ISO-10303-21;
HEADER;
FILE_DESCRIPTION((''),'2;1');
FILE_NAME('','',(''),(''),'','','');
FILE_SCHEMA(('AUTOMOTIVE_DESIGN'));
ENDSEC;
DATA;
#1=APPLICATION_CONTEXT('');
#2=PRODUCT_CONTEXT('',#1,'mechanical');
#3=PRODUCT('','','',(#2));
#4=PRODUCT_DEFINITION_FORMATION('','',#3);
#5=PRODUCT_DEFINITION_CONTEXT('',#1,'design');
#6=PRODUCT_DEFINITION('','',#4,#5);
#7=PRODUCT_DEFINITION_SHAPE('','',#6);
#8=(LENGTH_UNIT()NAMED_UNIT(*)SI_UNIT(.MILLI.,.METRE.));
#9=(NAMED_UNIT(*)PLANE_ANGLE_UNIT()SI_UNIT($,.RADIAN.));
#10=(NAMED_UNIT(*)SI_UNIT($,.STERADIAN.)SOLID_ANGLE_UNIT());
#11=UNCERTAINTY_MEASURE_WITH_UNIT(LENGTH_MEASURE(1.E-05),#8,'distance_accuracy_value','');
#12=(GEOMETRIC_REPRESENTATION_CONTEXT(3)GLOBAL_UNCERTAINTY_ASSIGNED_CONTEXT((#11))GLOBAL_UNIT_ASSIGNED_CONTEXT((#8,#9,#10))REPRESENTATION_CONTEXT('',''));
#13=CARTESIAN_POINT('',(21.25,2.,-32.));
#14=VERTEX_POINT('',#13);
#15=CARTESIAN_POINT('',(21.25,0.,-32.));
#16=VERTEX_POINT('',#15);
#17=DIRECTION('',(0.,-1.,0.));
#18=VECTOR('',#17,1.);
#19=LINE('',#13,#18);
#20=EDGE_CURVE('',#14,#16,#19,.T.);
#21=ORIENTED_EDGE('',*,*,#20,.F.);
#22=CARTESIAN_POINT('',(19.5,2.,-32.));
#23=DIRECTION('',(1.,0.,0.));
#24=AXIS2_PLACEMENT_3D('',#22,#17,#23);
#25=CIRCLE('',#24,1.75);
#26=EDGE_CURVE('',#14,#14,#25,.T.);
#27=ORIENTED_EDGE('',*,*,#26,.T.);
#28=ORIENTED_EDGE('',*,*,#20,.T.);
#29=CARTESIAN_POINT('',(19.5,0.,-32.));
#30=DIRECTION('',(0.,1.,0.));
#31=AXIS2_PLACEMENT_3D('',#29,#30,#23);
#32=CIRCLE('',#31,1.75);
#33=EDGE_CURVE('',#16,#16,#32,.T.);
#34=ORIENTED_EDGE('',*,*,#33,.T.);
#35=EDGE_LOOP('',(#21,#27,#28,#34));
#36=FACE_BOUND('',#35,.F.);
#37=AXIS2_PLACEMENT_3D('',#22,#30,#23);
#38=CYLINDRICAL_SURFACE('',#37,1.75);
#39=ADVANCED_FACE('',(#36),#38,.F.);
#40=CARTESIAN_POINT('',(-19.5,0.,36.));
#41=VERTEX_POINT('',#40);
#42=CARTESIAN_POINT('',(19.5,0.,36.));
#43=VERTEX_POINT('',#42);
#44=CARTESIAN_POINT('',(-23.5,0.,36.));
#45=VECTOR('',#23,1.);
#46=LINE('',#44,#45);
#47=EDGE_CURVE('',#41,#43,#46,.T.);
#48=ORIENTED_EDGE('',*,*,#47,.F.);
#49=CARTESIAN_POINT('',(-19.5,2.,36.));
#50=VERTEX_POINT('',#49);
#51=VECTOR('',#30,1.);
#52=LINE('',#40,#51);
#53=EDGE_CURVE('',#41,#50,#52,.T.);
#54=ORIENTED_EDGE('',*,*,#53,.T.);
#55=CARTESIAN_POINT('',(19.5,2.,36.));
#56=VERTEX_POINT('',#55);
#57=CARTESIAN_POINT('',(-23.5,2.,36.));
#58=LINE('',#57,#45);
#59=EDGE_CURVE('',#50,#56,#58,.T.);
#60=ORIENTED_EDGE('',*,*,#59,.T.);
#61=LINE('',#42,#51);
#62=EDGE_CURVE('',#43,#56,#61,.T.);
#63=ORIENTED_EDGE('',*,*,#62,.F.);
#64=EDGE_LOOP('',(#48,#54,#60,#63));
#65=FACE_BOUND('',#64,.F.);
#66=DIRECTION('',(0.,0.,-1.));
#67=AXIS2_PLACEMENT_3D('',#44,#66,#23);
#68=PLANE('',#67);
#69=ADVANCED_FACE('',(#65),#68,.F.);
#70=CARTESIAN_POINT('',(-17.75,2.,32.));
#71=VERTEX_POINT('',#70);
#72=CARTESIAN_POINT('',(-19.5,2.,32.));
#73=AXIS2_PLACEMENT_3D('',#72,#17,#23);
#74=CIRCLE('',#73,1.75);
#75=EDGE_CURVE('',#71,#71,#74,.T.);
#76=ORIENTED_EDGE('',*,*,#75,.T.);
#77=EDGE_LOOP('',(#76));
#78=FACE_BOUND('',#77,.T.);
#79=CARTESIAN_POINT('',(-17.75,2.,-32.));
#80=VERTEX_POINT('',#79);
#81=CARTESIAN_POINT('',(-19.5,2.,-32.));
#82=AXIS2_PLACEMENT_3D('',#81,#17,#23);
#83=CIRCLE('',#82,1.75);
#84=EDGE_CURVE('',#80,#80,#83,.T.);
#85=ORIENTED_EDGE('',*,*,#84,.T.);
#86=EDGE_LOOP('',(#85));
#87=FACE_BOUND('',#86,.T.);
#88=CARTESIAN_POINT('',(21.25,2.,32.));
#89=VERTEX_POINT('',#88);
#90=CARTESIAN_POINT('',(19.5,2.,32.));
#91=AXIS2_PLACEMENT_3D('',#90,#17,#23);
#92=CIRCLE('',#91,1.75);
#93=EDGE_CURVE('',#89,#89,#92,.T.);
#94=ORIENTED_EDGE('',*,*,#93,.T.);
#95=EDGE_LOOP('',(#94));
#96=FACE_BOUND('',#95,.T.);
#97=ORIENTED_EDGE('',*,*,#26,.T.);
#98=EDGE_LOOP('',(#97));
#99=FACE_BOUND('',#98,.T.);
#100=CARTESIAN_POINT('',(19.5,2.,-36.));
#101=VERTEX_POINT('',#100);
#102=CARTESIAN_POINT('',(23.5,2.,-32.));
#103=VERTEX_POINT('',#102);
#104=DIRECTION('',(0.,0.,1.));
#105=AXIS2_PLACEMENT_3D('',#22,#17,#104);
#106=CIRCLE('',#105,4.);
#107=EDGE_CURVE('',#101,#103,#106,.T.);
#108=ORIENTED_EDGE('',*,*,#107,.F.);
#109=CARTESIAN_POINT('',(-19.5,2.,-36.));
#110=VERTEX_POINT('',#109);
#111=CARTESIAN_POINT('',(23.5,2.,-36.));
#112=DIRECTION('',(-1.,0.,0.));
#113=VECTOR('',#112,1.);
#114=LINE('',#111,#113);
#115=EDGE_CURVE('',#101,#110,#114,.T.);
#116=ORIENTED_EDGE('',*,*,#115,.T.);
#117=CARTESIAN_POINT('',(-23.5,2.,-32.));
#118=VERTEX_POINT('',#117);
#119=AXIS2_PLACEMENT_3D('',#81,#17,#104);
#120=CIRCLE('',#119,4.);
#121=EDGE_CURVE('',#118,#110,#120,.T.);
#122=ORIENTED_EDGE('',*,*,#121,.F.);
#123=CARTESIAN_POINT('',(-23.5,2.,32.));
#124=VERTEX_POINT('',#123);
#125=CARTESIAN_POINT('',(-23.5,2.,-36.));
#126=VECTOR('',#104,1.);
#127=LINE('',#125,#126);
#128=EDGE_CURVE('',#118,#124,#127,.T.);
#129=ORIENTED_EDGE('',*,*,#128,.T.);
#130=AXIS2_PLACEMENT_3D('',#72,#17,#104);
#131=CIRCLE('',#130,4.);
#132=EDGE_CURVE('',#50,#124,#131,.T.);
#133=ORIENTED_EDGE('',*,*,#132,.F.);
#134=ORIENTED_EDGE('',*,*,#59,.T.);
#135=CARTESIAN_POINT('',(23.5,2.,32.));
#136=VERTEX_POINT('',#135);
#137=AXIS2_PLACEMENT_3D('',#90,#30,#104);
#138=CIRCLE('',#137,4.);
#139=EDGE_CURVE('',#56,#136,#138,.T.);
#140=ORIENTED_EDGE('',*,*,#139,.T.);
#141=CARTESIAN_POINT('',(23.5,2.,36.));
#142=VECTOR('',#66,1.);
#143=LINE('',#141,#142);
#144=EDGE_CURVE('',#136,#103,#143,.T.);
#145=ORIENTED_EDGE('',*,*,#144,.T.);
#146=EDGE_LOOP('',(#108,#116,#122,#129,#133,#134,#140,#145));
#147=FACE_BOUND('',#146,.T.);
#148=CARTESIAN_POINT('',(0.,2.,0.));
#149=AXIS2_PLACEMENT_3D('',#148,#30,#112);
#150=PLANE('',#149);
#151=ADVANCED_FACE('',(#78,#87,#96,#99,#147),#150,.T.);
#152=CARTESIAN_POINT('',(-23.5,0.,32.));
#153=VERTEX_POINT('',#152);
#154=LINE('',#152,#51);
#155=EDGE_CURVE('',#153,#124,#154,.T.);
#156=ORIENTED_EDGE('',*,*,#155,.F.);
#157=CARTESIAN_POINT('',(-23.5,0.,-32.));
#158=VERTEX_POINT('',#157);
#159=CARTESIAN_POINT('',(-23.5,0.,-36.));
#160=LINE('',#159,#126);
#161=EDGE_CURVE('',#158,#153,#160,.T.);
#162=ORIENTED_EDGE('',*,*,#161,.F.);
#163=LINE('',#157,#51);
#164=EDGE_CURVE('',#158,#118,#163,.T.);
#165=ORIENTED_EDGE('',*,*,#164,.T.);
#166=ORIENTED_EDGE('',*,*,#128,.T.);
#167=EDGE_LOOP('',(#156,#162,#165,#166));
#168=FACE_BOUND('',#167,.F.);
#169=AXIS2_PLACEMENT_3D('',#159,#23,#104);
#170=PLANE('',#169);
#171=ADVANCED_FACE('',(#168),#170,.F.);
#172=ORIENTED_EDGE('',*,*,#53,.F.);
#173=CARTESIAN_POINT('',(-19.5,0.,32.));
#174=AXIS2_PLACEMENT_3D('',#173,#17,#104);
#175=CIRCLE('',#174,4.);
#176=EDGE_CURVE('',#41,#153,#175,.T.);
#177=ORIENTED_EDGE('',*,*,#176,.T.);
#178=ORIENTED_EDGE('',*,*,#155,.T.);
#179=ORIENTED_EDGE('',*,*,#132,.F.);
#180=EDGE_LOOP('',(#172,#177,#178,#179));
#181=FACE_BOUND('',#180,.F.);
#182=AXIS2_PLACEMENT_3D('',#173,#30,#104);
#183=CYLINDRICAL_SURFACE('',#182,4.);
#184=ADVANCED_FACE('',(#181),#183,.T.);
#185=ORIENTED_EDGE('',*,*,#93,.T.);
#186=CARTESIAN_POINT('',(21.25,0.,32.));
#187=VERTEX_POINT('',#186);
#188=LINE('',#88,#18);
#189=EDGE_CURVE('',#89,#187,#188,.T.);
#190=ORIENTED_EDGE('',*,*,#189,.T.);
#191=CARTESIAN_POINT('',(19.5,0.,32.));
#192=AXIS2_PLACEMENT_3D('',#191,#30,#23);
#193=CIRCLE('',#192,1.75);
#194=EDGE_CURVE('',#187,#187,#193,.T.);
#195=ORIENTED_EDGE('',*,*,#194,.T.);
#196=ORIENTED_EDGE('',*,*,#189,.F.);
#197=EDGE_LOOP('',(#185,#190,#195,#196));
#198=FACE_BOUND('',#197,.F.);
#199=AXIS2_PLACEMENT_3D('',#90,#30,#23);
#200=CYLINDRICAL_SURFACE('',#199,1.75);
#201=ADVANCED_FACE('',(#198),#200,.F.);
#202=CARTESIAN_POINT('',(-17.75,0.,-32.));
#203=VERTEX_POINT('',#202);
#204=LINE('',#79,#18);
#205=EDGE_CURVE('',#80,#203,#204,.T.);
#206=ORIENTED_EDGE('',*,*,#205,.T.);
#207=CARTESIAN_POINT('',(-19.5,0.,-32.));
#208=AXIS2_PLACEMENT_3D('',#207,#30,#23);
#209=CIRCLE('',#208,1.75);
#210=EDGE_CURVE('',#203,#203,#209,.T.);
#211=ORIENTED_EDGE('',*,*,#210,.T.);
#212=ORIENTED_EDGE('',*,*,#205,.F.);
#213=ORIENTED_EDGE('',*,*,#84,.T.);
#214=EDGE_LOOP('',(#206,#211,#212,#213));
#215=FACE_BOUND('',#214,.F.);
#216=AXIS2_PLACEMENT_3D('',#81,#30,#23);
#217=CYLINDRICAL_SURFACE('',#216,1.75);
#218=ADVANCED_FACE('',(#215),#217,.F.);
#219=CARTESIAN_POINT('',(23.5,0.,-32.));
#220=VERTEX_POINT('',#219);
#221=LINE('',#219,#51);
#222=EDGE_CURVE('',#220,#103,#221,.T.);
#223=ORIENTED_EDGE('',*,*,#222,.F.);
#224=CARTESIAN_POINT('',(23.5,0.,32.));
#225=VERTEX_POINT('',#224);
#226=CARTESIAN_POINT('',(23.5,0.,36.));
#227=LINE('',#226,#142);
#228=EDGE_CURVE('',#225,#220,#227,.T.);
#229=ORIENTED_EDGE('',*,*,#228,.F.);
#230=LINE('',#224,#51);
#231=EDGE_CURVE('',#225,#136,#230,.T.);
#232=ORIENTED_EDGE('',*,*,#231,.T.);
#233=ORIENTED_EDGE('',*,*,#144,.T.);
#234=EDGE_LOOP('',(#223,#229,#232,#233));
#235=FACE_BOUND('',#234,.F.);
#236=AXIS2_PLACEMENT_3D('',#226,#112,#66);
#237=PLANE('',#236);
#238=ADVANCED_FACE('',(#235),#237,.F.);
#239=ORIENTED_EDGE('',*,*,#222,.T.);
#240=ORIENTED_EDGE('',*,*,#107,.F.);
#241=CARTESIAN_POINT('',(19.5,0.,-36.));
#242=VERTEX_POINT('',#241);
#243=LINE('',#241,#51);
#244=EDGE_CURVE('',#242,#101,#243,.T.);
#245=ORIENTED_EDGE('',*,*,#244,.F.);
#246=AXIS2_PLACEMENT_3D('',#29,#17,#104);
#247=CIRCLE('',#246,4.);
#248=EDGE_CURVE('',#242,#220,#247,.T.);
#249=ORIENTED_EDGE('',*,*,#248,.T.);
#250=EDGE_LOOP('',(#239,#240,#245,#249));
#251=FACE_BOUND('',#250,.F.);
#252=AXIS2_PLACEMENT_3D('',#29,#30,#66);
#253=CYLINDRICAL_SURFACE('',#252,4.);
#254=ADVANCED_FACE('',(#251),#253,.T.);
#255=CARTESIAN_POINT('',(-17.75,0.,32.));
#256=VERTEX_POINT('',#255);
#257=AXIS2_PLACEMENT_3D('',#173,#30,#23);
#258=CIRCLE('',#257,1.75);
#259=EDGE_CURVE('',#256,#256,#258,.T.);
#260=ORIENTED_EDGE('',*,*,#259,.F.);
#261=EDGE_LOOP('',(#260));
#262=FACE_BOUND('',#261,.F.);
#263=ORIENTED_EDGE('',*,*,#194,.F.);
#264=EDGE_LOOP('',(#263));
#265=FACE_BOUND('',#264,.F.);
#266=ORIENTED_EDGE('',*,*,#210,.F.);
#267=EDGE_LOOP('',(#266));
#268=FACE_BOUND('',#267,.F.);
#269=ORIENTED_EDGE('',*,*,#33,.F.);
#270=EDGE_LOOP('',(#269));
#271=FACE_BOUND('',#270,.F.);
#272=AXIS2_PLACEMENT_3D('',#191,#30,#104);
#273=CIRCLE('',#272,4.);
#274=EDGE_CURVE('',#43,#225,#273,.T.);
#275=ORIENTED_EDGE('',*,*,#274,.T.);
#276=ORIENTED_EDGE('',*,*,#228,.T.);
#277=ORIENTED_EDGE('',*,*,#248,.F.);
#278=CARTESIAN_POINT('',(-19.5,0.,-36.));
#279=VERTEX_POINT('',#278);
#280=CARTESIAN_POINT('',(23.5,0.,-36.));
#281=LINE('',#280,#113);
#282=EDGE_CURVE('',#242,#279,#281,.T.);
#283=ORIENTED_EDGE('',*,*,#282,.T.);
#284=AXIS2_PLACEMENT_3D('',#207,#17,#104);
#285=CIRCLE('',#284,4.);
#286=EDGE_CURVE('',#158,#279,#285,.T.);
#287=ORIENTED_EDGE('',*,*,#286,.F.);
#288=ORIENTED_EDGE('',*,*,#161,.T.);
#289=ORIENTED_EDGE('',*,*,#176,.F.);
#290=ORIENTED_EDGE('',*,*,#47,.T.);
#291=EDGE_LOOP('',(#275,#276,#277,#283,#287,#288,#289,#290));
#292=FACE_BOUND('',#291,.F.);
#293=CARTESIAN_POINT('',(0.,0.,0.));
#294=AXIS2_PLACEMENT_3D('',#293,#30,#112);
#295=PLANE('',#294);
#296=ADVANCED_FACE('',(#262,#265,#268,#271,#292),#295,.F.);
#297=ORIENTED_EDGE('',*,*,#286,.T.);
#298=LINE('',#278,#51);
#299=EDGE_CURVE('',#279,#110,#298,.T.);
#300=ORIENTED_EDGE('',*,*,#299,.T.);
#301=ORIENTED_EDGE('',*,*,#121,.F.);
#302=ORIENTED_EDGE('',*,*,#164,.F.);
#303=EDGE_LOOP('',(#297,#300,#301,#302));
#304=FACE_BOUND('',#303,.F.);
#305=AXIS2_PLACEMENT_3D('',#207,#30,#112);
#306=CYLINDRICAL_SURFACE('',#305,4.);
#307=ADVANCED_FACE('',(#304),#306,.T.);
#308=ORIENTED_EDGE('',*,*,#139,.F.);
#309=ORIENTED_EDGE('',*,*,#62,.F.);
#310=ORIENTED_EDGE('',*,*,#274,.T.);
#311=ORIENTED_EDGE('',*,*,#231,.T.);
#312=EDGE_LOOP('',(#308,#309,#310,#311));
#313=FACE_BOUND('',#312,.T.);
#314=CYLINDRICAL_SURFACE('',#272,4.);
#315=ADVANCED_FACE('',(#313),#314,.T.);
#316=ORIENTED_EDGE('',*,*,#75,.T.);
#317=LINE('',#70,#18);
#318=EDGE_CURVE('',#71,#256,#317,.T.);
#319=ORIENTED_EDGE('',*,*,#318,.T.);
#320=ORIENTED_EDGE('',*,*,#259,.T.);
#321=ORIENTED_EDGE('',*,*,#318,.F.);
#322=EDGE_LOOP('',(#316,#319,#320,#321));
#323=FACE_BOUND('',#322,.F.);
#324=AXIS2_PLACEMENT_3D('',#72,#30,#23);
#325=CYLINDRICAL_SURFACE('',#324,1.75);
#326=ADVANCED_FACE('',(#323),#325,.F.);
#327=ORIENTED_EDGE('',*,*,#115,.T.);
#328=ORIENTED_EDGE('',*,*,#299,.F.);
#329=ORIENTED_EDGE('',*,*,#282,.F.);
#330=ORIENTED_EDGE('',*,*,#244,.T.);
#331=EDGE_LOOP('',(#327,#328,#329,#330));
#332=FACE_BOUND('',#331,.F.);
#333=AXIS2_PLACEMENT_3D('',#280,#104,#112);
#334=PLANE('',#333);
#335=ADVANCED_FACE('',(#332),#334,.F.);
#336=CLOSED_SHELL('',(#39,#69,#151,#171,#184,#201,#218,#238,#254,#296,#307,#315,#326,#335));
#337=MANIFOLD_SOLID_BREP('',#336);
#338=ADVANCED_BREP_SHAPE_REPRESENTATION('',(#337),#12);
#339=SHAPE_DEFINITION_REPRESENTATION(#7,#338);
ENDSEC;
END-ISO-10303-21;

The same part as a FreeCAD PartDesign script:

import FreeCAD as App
import Part
import Sketcher

V = App.Vector
Q = App.Units.Quantity


def edges_at(feature, points):
    """Names of the edges that pass closest to the given points."""
    edges = feature.Shape.Edges
    near = lambda p: min(range(len(edges)), key=lambda i: edges[i].distToShape(Part.Vertex(*p))[0])
    return sorted({f"Edge{near(p) + 1}" for p in points})


def add_polygon(sketch, points):
    """Adds a closed chain of lines whose ends are joined by coincident constraints."""
    first, n = sketch.GeometryCount, len(points)
    for a, b in zip(points, points[1:] + points[:1]):
        sketch.addGeometry(Part.LineSegment(App.Vector(*a, 0), App.Vector(*b, 0)), False)
    for i in range(n):
        sketch.addConstraint(Sketcher.Constraint("Coincident", first + i, 2, first + (i + 1) % n, 1))

doc = App.newDocument("Part")
body = doc.addObject("PartDesign::Body", "Body")

sketch1 = doc.addObject("Sketcher::SketchObject", "Sketch")
body.addObject(sketch1)
sketch1.AttachmentSupport = (doc.XZ_Plane, [""])
sketch1.MapMode = "FlatFace"
add_polygon(sketch1, [(-24, 36), (24, 36), (24, -36), (-24, -36)])
sketch1.addConstraint([
    Sketcher.Constraint("Horizontal", 0),
    Sketcher.Constraint("Vertical", 1),
    Sketcher.Constraint("Horizontal", 2),
    Sketcher.Constraint("Vertical", 3),
    Sketcher.Constraint("Symmetric", 0, 2, 2, 2, -1, 1),
    Sketcher.Constraint("DistanceX", 0, 1, 0, 2, Q("47 mm")),
    Sketcher.Constraint("DistanceY", 1, 2, 1, 1, Q("72 mm")),
])
pad1 = doc.addObject("PartDesign::Pad", "Pad")
body.addObject(pad1)
pad1.Profile = sketch1
pad1.Length = 2
pad1.Reversed = True
doc.recompute()

fillet = doc.addObject("PartDesign::Fillet", "Fillet")
body.addObject(fillet)
fillet.Base = (pad1, edges_at(pad1, [
    (23.5, 1, 36),
    (-23.5, 1, 36),
    (23.5, 1, -36),
    (-23.5, 1, -36),
]))
fillet.Radius = 4

sketch2 = doc.addObject("Sketcher::SketchObject", "Sketch001")
body.addObject(sketch2)
sketch2.AttachmentSupport = (doc.XZ_Plane, [""])
sketch2.MapMode = "FlatFace"
sketch2.AttachmentOffset = App.Placement(V(0, 0, -2), App.Rotation())
sketch2.addGeometry([
    Part.Circle(V(-19.5, -32, 0), V(0, 0, 1), 1.8),
    Part.Circle(V(-19.5, 32, 0), V(0, 0, 1), 1.8),
    Part.Circle(V(19.5, -32, 0), V(0, 0, 1), 1.8),
    Part.Circle(V(19.5, 32, 0), V(0, 0, 1), 1.8),
], False)
sketch2.addConstraint([
    Sketcher.Constraint("Equal", 0, 1),
    Sketcher.Constraint("Equal", 1, 2),
    Sketcher.Constraint("Equal", 2, 3),
    Sketcher.Constraint("Symmetric", 1, 3, 2, 3, -1, 1),
    Sketcher.Constraint("Symmetric", 0, 3, 3, 3, -1, 1),
    Sketcher.Constraint("Symmetric", 0, 3, 2, 3, -2),
    Sketcher.Constraint("Diameter", 0, Q("3.5 mm")),
    Sketcher.Constraint("DistanceY", 0, 3, 1, 3, Q("64 mm")),
    Sketcher.Constraint("DistanceX", 0, 3, 2, 3, Q("39 mm")),
])
pocket1 = doc.addObject("PartDesign::Pocket", "Pocket")
body.addObject(pocket1)
pocket1.Profile = sketch2
pocket1.Type = "ThroughAll"
pocket1.Reversed = True

doc.recompute()
